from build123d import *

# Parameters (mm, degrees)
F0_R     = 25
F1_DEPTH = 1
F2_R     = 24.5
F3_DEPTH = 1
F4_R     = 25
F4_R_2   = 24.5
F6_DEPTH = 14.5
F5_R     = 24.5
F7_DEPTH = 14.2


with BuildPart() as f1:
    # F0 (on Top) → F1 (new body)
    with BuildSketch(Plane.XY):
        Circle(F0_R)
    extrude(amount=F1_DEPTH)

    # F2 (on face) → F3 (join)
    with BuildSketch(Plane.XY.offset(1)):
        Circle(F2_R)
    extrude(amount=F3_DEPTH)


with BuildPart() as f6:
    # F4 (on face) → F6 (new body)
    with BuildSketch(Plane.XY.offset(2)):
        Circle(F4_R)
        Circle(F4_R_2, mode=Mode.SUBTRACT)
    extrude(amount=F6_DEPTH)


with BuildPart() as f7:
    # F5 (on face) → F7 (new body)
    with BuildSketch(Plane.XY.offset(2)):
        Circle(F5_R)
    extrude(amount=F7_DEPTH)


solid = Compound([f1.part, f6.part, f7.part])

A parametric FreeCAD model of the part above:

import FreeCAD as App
import Part
import Sketcher
Q = App.Units.Quantity

doc = App.newDocument("Part")
params = doc.addObject("Spreadsheet::Sheet", "Params")
for row, (alias, value) in enumerate([
    ("sketch1_diameter", "50 mm"),
    ("pad1_length", "1 mm"),
    ("sketch2_diameter", "49 mm"),
    ("pad2_length", "1 mm"),
    ("sketch3_diameter", "50 mm"),
    ("sketch3_diameter2", "49 mm"),
    ("pad3_length", "14.5 mm"),
    ("sketch4_diameter", "49 mm"),
    ("pad4_length", "14.2 mm"),
], start=1):
    params.set(f"A{row}", alias)
    params.set(f"B{row}", "=" + value)
    params.setAlias(f"B{row}", alias)

body = doc.addObject("PartDesign::Body", "Body")

sketch1 = body.newObject("Sketcher::SketchObject", "Sketch")
sketch1.AttachmentSupport = (doc.getObject("XY_Plane"), [""])
sketch1.MapMode = "FlatFace"
sketch1.addGeometry(Part.Circle(App.Vector(0, 0, 0), App.Vector(0, 0, 1), 25), False)
sketch1.addConstraint([
    Sketcher.Constraint("Coincident", 0, 3, -1, 1),
    Sketcher.Constraint("Diameter", 0, Q("50 mm")),
])
sketch1.setExpression("Constraints[1]", "Params.sketch1_diameter")
pad1 = body.newObject("PartDesign::Pad", "Pad")
pad1.Profile = sketch1
pad1.setExpression("Length", "Params.pad1_length")

sketch2 = body.newObject("Sketcher::SketchObject", "Sketch001")
sketch2.AttachmentSupport = (doc.getObject("XY_Plane"), [""])
sketch2.MapMode = "FlatFace"
sketch2.AttachmentOffset = App.Placement(App.Vector(0, 0, 1), App.Rotation())
sketch2.addGeometry(Part.Circle(App.Vector(0, 0, 0), App.Vector(0, 0, 1), 24.5), False)
sketch2.addConstraint([
    Sketcher.Constraint("Coincident", 0, 3, -1, 1),
    Sketcher.Constraint("Diameter", 0, Q("49 mm")),
])
sketch2.setExpression("Constraints[1]", "Params.sketch2_diameter")
pad2 = body.newObject("PartDesign::Pad", "Pad001")
pad2.Profile = sketch2
pad2.setExpression("Length", "Params.pad2_length")
body2 = doc.addObject("PartDesign::Body", "Body001")

sketch3 = body2.newObject("Sketcher::SketchObject", "Sketch002")
sketch3.AttachmentSupport = (doc.getObject("XY_Plane001"), [""])
sketch3.MapMode = "FlatFace"
sketch3.AttachmentOffset = App.Placement(App.Vector(0, 0, 2), App.Rotation())
sketch3.addGeometry([
    Part.Circle(App.Vector(0, 0, 0), App.Vector(0, 0, 1), 25),
    Part.Circle(App.Vector(0, 0, 0), App.Vector(0, 0, 1), 24.5),
], False)
sketch3.addConstraint([
    Sketcher.Constraint("Coincident", 0, 3, -1, 1),
    Sketcher.Constraint("Coincident", 1, 3, -1, 1),
    Sketcher.Constraint("Diameter", 0, Q("50 mm")),
    Sketcher.Constraint("Diameter", 1, Q("49 mm")),
])
sketch3.setExpression("Constraints[2]", "Params.sketch3_diameter")
sketch3.setExpression("Constraints[3]", "Params.sketch3_diameter2")
pad3 = body2.newObject("PartDesign::Pad", "Pad002")
pad3.Profile = sketch3
pad3.setExpression("Length", "Params.pad3_length")
body3 = doc.addObject("PartDesign::Body", "Body002")

sketch4 = body3.newObject("Sketcher::SketchObject", "Sketch003")
sketch4.AttachmentSupport = (doc.getObject("XY_Plane002"), [""])
sketch4.MapMode = "FlatFace"
sketch4.AttachmentOffset = App.Placement(App.Vector(0, 0, 2), App.Rotation())
sketch4.addGeometry(Part.Circle(App.Vector(0, 0, 0), App.Vector(0, 0, 1), 24.5), False)
sketch4.addConstraint([
    Sketcher.Constraint("Coincident", 0, 3, -1, 1),
    Sketcher.Constraint("Diameter", 0, Q("49 mm")),
])
sketch4.setExpression("Constraints[1]", "Params.sketch4_diameter")
pad4 = body3.newObject("PartDesign::Pad", "Pad003")
pad4.Profile = sketch4
pad4.setExpression("Length", "Params.pad4_length")

doc.recompute()
